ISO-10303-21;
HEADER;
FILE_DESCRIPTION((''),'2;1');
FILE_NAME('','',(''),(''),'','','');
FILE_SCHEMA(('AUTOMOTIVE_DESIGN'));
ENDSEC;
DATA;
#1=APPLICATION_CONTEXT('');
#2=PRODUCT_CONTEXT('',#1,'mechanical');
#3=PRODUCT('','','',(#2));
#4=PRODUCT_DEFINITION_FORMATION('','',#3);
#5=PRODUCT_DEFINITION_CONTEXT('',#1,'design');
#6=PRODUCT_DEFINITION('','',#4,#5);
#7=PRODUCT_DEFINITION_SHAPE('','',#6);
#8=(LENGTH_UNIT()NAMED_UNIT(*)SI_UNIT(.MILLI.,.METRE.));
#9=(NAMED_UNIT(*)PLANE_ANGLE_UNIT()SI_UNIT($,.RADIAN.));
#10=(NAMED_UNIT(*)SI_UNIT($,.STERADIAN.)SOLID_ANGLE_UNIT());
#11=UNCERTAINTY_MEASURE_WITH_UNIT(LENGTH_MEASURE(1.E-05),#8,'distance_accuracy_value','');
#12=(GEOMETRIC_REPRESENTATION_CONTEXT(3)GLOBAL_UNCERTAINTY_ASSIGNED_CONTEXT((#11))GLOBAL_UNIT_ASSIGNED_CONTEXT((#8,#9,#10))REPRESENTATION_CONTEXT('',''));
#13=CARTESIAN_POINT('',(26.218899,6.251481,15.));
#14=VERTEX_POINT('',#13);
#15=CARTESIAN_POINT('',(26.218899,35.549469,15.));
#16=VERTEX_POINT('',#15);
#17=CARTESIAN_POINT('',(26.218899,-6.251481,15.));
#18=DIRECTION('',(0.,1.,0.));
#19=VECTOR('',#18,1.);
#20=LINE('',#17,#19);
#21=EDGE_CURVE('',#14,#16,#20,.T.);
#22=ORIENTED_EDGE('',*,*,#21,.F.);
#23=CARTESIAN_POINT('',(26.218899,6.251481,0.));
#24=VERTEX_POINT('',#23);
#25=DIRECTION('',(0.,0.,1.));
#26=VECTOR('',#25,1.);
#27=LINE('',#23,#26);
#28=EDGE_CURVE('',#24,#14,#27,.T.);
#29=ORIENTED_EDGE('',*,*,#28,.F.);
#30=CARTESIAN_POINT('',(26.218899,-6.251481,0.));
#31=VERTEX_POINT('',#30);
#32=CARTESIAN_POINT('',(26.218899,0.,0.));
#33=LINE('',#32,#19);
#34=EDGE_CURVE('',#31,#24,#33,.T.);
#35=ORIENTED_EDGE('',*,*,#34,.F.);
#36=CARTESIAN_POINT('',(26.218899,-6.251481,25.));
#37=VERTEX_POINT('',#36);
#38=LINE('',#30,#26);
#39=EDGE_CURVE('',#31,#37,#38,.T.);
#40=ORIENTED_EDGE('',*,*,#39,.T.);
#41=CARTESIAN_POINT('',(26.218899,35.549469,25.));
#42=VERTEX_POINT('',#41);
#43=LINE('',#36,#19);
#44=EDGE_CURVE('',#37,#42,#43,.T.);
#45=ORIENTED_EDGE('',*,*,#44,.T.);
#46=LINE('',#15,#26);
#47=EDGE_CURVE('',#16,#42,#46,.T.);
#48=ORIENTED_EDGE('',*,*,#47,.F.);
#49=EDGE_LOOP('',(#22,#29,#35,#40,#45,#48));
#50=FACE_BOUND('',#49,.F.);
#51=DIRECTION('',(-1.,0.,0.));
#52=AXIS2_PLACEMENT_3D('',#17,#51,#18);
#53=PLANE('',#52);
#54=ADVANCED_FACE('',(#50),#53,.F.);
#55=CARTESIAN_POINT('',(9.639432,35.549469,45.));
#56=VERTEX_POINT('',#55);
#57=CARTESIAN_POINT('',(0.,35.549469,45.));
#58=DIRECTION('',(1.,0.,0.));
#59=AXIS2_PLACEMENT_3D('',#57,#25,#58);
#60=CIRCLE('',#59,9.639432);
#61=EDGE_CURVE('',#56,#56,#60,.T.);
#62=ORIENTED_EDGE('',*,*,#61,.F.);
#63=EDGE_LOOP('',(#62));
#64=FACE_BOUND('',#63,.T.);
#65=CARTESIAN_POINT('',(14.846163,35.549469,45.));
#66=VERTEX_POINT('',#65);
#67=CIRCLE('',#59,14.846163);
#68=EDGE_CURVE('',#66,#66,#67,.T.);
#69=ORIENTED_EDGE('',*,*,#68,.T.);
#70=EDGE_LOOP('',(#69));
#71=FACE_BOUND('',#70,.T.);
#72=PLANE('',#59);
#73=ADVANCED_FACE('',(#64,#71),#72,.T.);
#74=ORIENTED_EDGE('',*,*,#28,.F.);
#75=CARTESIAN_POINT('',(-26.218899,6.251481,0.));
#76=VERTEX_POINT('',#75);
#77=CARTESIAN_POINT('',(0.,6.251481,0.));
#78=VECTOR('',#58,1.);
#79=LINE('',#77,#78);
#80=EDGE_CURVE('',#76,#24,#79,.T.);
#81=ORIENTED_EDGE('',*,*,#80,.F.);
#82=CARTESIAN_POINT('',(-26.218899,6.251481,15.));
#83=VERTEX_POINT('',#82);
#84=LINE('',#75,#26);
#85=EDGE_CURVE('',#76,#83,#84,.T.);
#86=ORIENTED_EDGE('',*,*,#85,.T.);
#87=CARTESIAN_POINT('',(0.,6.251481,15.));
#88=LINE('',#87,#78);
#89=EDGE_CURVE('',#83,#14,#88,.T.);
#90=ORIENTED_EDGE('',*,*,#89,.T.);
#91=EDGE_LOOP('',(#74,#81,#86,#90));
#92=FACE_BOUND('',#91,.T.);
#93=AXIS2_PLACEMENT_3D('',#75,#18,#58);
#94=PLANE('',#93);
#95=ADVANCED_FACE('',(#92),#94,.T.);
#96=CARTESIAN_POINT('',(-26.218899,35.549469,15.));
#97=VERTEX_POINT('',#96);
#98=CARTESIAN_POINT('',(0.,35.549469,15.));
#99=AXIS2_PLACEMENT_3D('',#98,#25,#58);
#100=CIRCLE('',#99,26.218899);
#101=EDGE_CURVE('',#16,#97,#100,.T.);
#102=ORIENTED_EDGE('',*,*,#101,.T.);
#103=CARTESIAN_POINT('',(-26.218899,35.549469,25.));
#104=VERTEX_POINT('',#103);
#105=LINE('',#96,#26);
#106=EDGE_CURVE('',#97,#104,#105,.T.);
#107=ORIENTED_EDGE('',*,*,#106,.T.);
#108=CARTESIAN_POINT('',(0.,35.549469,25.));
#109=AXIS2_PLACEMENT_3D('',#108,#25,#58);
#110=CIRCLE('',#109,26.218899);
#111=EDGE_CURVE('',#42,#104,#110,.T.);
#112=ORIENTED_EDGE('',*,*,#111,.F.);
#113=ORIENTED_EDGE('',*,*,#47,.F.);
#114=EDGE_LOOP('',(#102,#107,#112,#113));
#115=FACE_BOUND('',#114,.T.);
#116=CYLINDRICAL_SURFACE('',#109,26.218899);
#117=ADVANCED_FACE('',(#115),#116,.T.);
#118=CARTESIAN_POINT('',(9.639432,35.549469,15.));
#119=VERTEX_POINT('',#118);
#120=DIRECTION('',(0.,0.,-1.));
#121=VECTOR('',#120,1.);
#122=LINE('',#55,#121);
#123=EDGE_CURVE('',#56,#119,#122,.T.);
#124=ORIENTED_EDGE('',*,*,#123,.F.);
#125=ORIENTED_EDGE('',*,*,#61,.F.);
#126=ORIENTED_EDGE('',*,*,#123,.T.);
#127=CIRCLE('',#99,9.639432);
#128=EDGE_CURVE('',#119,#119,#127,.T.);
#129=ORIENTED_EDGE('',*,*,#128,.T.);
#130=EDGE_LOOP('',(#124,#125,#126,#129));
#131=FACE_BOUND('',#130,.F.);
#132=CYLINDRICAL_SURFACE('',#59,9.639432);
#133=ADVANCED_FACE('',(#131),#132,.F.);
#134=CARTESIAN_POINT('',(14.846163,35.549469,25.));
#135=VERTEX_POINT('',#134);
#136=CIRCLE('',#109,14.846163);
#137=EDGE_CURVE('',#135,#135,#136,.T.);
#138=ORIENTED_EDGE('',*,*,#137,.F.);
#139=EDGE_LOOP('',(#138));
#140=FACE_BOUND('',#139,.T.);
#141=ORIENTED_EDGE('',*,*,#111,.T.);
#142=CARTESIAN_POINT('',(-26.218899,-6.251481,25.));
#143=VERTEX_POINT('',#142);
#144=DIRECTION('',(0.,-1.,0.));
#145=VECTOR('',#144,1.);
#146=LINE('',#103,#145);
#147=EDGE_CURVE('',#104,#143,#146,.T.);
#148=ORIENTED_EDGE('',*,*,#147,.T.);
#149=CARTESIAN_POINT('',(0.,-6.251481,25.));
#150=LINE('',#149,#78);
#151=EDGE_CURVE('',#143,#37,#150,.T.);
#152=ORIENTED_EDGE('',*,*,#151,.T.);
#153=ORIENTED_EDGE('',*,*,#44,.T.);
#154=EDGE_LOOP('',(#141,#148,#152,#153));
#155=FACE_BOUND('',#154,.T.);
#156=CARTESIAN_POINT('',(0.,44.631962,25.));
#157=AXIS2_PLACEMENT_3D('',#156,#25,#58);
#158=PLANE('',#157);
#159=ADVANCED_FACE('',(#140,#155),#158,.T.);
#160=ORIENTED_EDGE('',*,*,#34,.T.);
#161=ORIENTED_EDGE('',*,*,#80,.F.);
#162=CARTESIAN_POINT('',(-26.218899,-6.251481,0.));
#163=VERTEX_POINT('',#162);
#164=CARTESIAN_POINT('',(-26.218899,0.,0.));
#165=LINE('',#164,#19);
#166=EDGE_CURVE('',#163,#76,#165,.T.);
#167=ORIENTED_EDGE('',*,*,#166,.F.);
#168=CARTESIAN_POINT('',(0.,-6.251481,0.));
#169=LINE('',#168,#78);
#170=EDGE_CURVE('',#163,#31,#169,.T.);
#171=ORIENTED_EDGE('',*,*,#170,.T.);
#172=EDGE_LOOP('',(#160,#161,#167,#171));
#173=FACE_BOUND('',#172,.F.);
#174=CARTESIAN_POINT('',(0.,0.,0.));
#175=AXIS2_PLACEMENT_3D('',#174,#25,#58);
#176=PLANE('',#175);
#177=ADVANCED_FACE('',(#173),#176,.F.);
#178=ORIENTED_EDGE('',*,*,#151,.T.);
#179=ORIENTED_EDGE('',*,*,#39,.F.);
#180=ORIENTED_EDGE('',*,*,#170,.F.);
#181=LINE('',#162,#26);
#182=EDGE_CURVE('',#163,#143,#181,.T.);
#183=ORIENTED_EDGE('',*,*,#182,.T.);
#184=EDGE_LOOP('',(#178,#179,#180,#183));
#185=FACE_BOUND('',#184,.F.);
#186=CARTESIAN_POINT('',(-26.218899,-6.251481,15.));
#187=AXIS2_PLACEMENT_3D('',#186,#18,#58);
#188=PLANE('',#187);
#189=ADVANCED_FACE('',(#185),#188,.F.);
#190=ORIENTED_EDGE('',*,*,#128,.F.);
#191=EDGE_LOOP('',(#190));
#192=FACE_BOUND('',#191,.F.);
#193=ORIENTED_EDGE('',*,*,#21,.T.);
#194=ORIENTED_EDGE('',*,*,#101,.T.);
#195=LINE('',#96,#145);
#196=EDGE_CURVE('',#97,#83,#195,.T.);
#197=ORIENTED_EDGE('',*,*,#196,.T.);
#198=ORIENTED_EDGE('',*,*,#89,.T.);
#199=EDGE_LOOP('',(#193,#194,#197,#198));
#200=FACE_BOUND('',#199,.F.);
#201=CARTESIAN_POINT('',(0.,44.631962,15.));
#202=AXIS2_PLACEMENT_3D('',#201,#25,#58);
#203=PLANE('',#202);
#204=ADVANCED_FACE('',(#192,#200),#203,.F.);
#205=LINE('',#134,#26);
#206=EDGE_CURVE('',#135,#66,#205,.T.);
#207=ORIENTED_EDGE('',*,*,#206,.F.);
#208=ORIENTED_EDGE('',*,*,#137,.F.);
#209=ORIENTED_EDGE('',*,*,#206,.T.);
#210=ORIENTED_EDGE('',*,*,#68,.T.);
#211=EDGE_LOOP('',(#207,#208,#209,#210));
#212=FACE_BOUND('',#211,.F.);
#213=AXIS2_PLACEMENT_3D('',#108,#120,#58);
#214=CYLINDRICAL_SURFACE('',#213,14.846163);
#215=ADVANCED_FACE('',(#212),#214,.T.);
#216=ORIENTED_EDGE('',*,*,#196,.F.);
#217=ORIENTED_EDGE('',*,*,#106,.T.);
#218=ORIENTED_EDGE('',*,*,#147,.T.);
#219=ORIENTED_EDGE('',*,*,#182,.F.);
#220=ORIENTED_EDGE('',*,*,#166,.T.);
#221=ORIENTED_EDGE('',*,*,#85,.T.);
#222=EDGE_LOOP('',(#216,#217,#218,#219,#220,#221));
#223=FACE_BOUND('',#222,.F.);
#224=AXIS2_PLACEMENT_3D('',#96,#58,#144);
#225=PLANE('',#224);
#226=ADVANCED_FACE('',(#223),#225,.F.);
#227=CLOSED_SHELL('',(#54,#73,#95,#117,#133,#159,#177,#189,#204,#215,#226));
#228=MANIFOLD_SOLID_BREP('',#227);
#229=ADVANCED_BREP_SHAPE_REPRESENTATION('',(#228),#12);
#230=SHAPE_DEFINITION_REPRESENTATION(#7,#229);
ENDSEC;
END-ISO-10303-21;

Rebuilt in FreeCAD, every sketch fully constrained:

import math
import FreeCAD as App
import Part
import Sketcher

doc = App.newDocument("Part")
body = doc.addObject("PartDesign::Body", "Body")

# Sketch on XY plane
sketch1 = body.newObject("Sketcher::SketchObject", "Sketch")
sketch1.AttachmentSupport = (doc.getObject("XY_Plane"), [""])
sketch1.MapMode = "FlatFace"
sketch1.addGeometry([
    Part.LineSegment(App.Vector(-26.218899, 6.251481, 0), App.Vector(-26.218899, -6.251481, 0)),
    Part.LineSegment(App.Vector(-26.218899, -6.251481, 0), App.Vector(26.218899, -6.251481, 0)),
    Part.LineSegment(App.Vector(26.218899, -6.251481, 0), App.Vector(26.218899, 6.251481, 0)),
    Part.LineSegment(App.Vector(26.218899, 6.251481, 0), App.Vector(-26.218899, 6.251481, 0)),
], False)
sketch1.addConstraint([
    Sketcher.Constraint("Coincident", 0, 2, 1, 1),
    Sketcher.Constraint("Coincident", 1, 2, 2, 1),
    Sketcher.Constraint("Coincident", 2, 2, 3, 1),
    Sketcher.Constraint("Coincident", 3, 2, 0, 1),
    Sketcher.Constraint("Vertical", 0),
    Sketcher.Constraint("Horizontal", 1),
    Sketcher.Constraint("Vertical", 2),
    Sketcher.Constraint("Horizontal", 3),
    Sketcher.Constraint("Symmetric", 0, 2, 2, 2, -1, 1),
    Sketcher.Constraint("DistanceX", 0, 2, -1, 1, 26.218899),
    Sketcher.Constraint("DistanceY", 0, 2, 0, 1, 12.502962),
])
pad1 = body.newObject("PartDesign::Pad", "Pad")
pad1.Profile = sketch1
pad1.Length = 15

# Sketch on XY plane
sketch2 = body.newObject("Sketcher::SketchObject", "Sketch001")
sketch2.AttachmentSupport = (doc.getObject("XY_Plane"), [""])
sketch2.MapMode = "FlatFace"
sketch2.AttachmentOffset = App.Placement(App.Vector(0, 0, 15), App.Rotation())
sketch2.addGeometry([
    Part.LineSegment(App.Vector(-26.218899, 35.549469, 0), App.Vector(-26.218899, -6.251481, 0)),
    Part.LineSegment(App.Vector(-26.218899, -6.251481, 0), App.Vector(26.218899, -6.251481, 0)),
    Part.LineSegment(App.Vector(26.218899, -6.251481, 0), App.Vector(26.218899, 35.549469, 0)),
    Part.LineSegment(App.Vector(26.218899, 35.549469, 0), App.Vector(-26.218899, 35.549469, 0)),
], False)
sketch2.addConstraint([
    Sketcher.Constraint("Coincident", 0, 2, 1, 1),
    Sketcher.Constraint("Coincident", 1, 2, 2, 1),
    Sketcher.Constraint("Coincident", 2, 2, 3, 1),
    Sketcher.Constraint("Coincident", 3, 2, 0, 1),
    Sketcher.Constraint("Vertical", 0),
    Sketcher.Constraint("Horizontal", 1),
    Sketcher.Constraint("Vertical", 2),
    Sketcher.Constraint("Horizontal", 3),
    Sketcher.Constraint("DistanceY", 0, 2, 0, 1, 41.80095),
    Sketcher.Constraint("DistanceX", 0, 2, -1, 1, 26.218899),
    Sketcher.Constraint("DistanceX", -1, 1, 1, 2, 26.218899),
    Sketcher.Constraint("DistanceY", 0, 2, -1, 1, 6.251481),
])
pad2 = body.newObject("PartDesign::Pad", "Pad001")
pad2.Profile = sketch2
pad2.Length = 10

# Sketch on XY plane
sketch3 = body.newObject("Sketcher::SketchObject", "Sketch002")
sketch3.AttachmentSupport = (doc.getObject("XY_Plane"), [""])
sketch3.MapMode = "FlatFace"
sketch3.AttachmentOffset = App.Placement(App.Vector(0, 0, 25), App.Rotation())
sketch3.addGeometry([
    Part.LineSegment(App.Vector(-26.218899, 35.549469, 0), App.Vector(26.218899, 35.549469, 0)),
    Part.ArcOfCircle(Part.Circle(App.Vector(0, 35.549469, 0), App.Vector(0, 0, 1), 26.218899), math.radians(0), math.radians(180)),
], False)
sketch3.addConstraint([
    Sketcher.Constraint("Coincident", 0, 1, 1, 2),
    Sketcher.Constraint("Coincident", 1, 1, 0, 2),
    Sketcher.Constraint("Horizontal", 0),
    Sketcher.Constraint("PointOnObject", 1, 3, -2),
    Sketcher.Constraint("Horizontal", 1, 3, 0, 1),
    Sketcher.Constraint("Radius", 1, 26.218899),
    Sketcher.Constraint("DistanceY", -1, 1, 1, 3, 35.549469),
])
pad3 = body.newObject("PartDesign::Pad", "Pad002")
pad3.Profile = sketch3
pad3.Length = 10
pad3.Reversed = True

# Sketch on XY plane
sketch4 = body.newObject("Sketcher::SketchObject", "Sketch003")
sketch4.AttachmentSupport = (doc.getObject("XY_Plane"), [""])
sketch4.MapMode = "FlatFace"
sketch4.AttachmentOffset = App.Placement(App.Vector(0, 0, 25), App.Rotation())
sketch4.addGeometry(Part.Circle(App.Vector(0, 35.549469, 0), App.Vector(0, 0, 1), 14.846163), False)
sketch4.addConstraint([
    Sketcher.Constraint("PointOnObject", 0, 3, -2),
    Sketcher.Constraint("Diameter", 0, 29.692326),
    Sketcher.Constraint("DistanceY", -1, 1, 0, 3, 35.549469),
])
pad4 = body.newObject("PartDesign::Pad", "Pad003")
pad4.Profile = sketch4
pad4.Length = 20

# Sketch on XY plane
sketch5 = body.newObject("Sketcher::SketchObject", "Sketch004")
sketch5.AttachmentSupport = (doc.getObject("XY_Plane"), [""])
sketch5.MapMode = "FlatFace"
sketch5.AttachmentOffset = App.Placement(App.Vector(0, 0, 45), App.Rotation())
sketch5.addGeometry(Part.Circle(App.Vector(0, 35.549469, 0), App.Vector(0, 0, 1), 9.639432), False)
sketch5.addConstraint([
    Sketcher.Constraint("PointOnObject", 0, 3, -2),
    Sketcher.Constraint("Diameter", 0, 19.278864),
    Sketcher.Constraint("DistanceY", -1, 1, 0, 3, 35.549469),
])
pocket1 = body.newObject("PartDesign::Pocket", "Pocket")
pocket1.Profile = sketch5
pocket1.Type = "ThroughAll"

doc.recompute()
